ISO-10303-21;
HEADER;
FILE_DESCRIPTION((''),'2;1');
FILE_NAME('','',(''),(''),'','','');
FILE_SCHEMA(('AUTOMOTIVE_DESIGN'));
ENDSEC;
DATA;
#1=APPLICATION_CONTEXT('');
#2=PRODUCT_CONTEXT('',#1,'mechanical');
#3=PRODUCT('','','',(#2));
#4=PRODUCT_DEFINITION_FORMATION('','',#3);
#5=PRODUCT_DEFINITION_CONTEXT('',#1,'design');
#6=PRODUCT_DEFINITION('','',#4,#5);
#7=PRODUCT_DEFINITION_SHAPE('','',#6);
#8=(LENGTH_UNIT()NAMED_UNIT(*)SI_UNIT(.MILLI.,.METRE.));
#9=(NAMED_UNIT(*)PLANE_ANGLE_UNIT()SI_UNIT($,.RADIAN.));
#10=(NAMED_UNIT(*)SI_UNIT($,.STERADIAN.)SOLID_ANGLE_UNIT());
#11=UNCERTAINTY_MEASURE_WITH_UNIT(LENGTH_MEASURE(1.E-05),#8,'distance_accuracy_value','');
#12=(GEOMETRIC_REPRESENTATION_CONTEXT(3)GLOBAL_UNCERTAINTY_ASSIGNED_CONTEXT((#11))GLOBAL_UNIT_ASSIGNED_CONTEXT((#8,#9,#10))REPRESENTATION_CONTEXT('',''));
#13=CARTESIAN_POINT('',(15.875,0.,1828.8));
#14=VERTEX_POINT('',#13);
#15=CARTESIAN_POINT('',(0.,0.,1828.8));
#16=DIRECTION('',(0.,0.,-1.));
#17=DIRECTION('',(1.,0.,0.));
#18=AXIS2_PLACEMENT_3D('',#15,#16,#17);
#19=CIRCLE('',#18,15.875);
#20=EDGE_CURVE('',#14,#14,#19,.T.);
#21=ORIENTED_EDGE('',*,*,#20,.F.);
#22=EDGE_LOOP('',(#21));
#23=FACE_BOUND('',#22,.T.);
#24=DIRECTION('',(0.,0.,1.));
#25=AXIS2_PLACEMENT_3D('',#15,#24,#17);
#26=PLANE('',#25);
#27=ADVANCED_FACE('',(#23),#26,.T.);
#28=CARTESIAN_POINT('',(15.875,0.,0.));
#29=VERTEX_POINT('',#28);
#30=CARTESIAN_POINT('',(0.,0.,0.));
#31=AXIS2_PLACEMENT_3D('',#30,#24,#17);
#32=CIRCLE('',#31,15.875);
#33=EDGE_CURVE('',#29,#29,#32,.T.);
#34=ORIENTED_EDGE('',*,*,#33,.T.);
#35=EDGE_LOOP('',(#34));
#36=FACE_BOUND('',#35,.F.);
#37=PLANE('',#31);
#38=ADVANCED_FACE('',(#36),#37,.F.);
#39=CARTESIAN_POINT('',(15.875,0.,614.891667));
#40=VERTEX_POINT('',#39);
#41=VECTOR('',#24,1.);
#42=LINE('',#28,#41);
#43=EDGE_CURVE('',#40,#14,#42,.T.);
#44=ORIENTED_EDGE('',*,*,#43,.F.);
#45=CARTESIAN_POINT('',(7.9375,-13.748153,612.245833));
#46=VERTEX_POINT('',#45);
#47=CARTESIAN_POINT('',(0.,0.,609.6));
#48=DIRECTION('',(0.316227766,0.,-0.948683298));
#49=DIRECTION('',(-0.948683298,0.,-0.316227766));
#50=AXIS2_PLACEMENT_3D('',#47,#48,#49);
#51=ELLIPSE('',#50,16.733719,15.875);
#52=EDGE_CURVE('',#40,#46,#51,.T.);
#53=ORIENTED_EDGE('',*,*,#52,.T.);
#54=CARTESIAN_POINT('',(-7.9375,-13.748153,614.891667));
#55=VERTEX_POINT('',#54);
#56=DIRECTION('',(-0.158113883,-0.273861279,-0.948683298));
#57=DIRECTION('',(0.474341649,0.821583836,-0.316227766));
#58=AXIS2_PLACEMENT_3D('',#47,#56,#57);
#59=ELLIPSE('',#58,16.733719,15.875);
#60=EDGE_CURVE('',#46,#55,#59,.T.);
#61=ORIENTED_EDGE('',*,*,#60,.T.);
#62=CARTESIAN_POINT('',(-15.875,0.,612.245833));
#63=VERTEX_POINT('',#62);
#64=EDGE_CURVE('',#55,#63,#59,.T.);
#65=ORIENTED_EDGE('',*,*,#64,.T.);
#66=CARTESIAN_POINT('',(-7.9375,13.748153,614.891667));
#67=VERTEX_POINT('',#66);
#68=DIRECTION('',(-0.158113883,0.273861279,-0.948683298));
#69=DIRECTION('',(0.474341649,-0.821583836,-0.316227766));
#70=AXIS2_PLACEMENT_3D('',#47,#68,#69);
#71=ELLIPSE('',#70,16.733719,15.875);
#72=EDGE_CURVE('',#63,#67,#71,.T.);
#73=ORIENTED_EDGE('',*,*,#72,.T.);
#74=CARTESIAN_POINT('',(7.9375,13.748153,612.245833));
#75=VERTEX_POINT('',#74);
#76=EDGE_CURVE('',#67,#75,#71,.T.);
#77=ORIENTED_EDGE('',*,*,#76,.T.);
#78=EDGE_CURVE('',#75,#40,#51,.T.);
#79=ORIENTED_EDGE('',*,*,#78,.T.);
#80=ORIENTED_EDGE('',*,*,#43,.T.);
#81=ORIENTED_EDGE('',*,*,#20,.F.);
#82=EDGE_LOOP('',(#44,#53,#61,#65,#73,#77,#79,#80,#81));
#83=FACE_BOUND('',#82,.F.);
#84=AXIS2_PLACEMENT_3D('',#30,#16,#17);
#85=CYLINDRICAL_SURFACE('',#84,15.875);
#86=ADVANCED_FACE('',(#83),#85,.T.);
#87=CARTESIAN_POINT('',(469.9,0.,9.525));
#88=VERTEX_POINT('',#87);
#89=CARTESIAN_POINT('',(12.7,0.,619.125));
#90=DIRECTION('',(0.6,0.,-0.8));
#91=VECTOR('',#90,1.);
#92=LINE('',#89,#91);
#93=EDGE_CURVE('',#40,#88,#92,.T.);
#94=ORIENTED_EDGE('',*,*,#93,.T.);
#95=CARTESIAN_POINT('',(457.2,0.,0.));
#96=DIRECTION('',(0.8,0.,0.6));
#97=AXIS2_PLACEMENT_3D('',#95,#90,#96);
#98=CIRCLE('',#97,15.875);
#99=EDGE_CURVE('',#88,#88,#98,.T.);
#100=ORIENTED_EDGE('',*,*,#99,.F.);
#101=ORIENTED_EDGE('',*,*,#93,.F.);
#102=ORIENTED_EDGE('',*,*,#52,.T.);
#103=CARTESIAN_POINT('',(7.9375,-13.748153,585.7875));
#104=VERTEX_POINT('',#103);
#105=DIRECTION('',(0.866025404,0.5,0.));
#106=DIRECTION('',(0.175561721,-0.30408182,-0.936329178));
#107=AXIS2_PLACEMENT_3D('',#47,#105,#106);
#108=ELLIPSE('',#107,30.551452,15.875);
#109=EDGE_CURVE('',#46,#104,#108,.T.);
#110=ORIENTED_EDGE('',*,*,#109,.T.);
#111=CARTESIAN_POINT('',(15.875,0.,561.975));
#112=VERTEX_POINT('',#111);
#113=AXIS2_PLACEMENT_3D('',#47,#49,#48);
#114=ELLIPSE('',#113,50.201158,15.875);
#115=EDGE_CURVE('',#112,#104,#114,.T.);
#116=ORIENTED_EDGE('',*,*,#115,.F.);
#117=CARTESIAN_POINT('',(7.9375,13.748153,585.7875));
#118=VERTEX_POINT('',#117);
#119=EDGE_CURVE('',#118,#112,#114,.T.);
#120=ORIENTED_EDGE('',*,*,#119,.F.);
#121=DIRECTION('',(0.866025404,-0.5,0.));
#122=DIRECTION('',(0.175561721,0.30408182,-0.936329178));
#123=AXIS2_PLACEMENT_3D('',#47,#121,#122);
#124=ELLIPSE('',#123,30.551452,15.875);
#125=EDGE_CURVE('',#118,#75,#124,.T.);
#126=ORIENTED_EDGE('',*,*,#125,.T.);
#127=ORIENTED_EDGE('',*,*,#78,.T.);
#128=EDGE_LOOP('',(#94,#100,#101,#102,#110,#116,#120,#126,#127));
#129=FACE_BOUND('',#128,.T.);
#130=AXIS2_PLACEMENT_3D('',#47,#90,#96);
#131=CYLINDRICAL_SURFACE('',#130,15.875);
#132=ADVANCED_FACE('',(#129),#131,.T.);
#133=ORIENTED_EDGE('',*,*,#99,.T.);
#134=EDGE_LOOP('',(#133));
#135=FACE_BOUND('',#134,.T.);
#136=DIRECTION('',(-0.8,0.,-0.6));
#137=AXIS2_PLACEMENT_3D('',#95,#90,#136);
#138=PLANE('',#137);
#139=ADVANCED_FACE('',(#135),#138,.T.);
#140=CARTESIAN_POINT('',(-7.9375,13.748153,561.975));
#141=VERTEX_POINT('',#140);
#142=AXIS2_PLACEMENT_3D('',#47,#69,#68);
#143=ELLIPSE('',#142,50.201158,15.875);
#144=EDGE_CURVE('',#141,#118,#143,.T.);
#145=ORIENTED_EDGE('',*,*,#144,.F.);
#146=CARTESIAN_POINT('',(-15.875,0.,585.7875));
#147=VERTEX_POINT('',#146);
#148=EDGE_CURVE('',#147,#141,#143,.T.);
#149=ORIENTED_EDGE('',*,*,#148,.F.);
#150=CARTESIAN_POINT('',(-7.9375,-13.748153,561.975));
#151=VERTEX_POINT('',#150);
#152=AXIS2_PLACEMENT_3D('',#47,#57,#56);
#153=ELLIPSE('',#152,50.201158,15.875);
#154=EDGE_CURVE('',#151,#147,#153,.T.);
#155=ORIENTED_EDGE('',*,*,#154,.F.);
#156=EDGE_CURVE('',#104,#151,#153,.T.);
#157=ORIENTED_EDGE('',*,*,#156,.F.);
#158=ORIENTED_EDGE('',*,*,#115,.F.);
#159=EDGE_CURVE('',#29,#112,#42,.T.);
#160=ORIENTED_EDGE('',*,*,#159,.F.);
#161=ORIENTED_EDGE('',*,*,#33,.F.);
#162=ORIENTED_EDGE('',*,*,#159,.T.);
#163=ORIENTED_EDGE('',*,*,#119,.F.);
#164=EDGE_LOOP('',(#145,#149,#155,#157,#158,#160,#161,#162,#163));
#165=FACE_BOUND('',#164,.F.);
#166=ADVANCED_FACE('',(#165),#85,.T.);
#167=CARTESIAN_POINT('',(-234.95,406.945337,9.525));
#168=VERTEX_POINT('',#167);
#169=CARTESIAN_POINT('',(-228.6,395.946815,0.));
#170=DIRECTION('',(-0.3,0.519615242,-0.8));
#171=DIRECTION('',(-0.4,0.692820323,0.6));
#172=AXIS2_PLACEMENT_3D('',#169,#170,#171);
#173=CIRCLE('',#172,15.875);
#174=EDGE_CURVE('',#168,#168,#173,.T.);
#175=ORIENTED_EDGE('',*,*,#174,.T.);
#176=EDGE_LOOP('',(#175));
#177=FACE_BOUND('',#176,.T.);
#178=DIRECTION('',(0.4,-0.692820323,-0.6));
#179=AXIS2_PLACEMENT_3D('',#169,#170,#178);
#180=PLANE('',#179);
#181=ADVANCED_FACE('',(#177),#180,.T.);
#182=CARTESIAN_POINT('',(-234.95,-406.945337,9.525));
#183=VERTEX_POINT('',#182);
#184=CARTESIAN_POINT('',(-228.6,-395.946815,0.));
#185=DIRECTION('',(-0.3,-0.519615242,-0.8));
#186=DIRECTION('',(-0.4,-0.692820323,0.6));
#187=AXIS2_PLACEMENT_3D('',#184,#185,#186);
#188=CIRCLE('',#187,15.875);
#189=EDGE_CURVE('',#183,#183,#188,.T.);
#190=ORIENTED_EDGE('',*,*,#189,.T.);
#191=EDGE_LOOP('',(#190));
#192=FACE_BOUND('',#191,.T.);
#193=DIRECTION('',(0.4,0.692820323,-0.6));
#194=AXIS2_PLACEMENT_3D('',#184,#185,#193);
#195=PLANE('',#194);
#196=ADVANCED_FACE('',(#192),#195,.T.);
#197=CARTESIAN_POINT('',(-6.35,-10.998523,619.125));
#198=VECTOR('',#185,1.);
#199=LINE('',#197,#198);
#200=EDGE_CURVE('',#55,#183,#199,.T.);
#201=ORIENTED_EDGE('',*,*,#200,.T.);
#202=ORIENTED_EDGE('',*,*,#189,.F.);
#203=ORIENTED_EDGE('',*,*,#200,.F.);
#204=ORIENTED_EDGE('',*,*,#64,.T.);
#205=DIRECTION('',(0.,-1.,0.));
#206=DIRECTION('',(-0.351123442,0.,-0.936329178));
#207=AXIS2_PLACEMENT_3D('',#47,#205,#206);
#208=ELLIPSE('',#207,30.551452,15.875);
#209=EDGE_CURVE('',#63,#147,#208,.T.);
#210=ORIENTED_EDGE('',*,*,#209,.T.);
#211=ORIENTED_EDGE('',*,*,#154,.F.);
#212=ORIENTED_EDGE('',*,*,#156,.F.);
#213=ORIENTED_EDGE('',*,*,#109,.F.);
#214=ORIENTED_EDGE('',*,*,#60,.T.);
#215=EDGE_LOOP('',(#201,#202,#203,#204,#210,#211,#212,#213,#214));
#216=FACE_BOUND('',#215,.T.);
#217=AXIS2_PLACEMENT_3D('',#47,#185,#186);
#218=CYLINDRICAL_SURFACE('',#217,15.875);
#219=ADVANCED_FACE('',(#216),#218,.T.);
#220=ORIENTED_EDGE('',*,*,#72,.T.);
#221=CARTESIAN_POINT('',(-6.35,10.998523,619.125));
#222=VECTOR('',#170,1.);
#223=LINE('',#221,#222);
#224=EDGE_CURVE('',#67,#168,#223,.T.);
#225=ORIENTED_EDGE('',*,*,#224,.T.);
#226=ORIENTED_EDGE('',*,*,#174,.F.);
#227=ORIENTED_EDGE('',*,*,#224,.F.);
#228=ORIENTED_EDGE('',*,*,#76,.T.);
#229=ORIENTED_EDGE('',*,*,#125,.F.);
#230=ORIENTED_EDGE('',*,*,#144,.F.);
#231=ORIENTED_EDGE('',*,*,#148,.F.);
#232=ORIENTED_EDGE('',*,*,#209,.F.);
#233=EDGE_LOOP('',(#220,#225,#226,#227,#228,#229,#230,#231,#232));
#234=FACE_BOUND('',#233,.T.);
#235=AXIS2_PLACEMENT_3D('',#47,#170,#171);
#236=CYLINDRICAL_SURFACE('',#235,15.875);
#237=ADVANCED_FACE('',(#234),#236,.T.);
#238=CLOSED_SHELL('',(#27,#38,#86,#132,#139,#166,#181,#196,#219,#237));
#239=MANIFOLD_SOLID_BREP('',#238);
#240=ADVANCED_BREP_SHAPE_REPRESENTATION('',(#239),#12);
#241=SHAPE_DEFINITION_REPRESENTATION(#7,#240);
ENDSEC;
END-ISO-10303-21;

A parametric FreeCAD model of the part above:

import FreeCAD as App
import Part
import Sketcher
from FreeCAD import Vector
Q = App.Units.Quantity

doc = App.newDocument("Part")
params = doc.addObject("Spreadsheet::Sheet", "Params")
for row, (alias, value) in enumerate([
    ("sketch1_diameter", "1.25 in"),
    ("pad1_length", "72 in"),
    ("sketch2_diameter", "1.25 in"),
    ("sketch3_width", "30 in"),
], start=1):
    params.set(f"A{row}", alias)
    params.set(f"B{row}", "=" + value)
    params.setAlias(f"B{row}", alias)

body = doc.addObject("PartDesign::Body", "Body")

# Sketch on XY plane
sketch1 = body.newObject("Sketcher::SketchObject", "Sketch")
sketch1.AttachmentSupport = (doc.getObject("XY_Plane"), [""])
sketch1.MapMode = "FlatFace"
sketch1.addGeometry(Part.Circle(Vector(0, 0, 0), Vector(0, 0, 1), 15.875), False)
sketch1.addConstraint(Sketcher.Constraint("Coincident", 0, 3, -1, 1))
sketch1.addConstraint(Sketcher.Constraint("Diameter", 0, Q("1.25 in")))
sketch1.setExpression("Constraints[1]", "Params.sketch1_diameter")
pad1 = body.newObject("PartDesign::Pad", "Pad")
pad1.Profile = sketch1
pad1.setExpression("Length", "Params.pad1_length")

# Sketch on an angled plane
sketch2 = body.newObject("Sketcher::SketchObject", "Sketch001")
sketch2.Placement = App.Placement(Vector(164.592, 0, -219.456), App.Rotation(Vector(0.8, 0, 0.6), Vector(0, -1, 0), Vector(0.6, 0, -0.8), "ZXY"))
sketch2.addGeometry(Part.Circle(Vector(365.76, 0, 0), Vector(0, 0, 1), 15.875), False)
sketch2.addConstraint(Sketcher.Constraint("PointOnObject", 0, 3, -1))
sketch2.addConstraint(Sketcher.Constraint("Diameter", 0, Q("1.25 in")))
sketch2.addConstraint(Sketcher.Constraint("DistanceX", -1, 1, 0, 3, Q("14.4 in")))
sketch2.setExpression("Constraints[1]", "Params.sketch2_diameter")

# Sketch on an angled plane
sketch3 = body.newObject("Sketcher::SketchObject", "Sketch002")
sketch3.Placement = App.Placement(Vector(292.608, 0, 219.456), App.Rotation(Vector(0.6, 0, -0.8), Vector(0, 1, 0), Vector(0.8, 0, 0.6), "ZXY"))
sketch3.addGeometry(Part.LineSegment(Vector(-487.68, 0, 0), Vector(274.32, 0, 0)), False)
sketch3.addConstraint(Sketcher.Constraint("Horizontal", 0))
sketch3.addConstraint(Sketcher.Constraint("PointOnObject", 0, 1, -1))
sketch3.addConstraint(Sketcher.Constraint("DistanceX", 0, 1, 0, 2, Q("30 in")))
sketch3.addConstraint(Sketcher.Constraint("DistanceX", 0, 1, -1, 1, Q("19.2 in")))
sketch3.setExpression("Constraints[2]", "Params.sketch3_width")
doc.recompute()

additivepipe = body.newObject("PartDesign::AdditivePipe", "AdditivePipe")
additivepipe.Profile = sketch2
additivepipe.Spine = (sketch3, ["Edge1"])
body2 = doc.addObject("PartDesign::Body", "Body001")
doc.recompute()

body2.BaseFeature = body
doc.recompute()

body3 = doc.addObject("PartDesign::Body", "Body002")
body3.BaseFeature = body
body3.Placement = App.Placement(Vector(0, 0, 0), App.Rotation(Vector(0, 0, -1), 120))
boolean = body2.newObject("PartDesign::Boolean", "Boolean")
boolean.Type = "Fuse"
boolean.addObjects([body3])
doc.recompute()

body.Placement = App.Placement(Vector(0, 0, 0), App.Rotation(Vector(0, 0, -1), 240))
boolean2 = body2.newObject("PartDesign::Boolean", "Boolean001")
boolean2.Type = "Fuse"
boolean2.addObjects([body])

doc.recompute()
